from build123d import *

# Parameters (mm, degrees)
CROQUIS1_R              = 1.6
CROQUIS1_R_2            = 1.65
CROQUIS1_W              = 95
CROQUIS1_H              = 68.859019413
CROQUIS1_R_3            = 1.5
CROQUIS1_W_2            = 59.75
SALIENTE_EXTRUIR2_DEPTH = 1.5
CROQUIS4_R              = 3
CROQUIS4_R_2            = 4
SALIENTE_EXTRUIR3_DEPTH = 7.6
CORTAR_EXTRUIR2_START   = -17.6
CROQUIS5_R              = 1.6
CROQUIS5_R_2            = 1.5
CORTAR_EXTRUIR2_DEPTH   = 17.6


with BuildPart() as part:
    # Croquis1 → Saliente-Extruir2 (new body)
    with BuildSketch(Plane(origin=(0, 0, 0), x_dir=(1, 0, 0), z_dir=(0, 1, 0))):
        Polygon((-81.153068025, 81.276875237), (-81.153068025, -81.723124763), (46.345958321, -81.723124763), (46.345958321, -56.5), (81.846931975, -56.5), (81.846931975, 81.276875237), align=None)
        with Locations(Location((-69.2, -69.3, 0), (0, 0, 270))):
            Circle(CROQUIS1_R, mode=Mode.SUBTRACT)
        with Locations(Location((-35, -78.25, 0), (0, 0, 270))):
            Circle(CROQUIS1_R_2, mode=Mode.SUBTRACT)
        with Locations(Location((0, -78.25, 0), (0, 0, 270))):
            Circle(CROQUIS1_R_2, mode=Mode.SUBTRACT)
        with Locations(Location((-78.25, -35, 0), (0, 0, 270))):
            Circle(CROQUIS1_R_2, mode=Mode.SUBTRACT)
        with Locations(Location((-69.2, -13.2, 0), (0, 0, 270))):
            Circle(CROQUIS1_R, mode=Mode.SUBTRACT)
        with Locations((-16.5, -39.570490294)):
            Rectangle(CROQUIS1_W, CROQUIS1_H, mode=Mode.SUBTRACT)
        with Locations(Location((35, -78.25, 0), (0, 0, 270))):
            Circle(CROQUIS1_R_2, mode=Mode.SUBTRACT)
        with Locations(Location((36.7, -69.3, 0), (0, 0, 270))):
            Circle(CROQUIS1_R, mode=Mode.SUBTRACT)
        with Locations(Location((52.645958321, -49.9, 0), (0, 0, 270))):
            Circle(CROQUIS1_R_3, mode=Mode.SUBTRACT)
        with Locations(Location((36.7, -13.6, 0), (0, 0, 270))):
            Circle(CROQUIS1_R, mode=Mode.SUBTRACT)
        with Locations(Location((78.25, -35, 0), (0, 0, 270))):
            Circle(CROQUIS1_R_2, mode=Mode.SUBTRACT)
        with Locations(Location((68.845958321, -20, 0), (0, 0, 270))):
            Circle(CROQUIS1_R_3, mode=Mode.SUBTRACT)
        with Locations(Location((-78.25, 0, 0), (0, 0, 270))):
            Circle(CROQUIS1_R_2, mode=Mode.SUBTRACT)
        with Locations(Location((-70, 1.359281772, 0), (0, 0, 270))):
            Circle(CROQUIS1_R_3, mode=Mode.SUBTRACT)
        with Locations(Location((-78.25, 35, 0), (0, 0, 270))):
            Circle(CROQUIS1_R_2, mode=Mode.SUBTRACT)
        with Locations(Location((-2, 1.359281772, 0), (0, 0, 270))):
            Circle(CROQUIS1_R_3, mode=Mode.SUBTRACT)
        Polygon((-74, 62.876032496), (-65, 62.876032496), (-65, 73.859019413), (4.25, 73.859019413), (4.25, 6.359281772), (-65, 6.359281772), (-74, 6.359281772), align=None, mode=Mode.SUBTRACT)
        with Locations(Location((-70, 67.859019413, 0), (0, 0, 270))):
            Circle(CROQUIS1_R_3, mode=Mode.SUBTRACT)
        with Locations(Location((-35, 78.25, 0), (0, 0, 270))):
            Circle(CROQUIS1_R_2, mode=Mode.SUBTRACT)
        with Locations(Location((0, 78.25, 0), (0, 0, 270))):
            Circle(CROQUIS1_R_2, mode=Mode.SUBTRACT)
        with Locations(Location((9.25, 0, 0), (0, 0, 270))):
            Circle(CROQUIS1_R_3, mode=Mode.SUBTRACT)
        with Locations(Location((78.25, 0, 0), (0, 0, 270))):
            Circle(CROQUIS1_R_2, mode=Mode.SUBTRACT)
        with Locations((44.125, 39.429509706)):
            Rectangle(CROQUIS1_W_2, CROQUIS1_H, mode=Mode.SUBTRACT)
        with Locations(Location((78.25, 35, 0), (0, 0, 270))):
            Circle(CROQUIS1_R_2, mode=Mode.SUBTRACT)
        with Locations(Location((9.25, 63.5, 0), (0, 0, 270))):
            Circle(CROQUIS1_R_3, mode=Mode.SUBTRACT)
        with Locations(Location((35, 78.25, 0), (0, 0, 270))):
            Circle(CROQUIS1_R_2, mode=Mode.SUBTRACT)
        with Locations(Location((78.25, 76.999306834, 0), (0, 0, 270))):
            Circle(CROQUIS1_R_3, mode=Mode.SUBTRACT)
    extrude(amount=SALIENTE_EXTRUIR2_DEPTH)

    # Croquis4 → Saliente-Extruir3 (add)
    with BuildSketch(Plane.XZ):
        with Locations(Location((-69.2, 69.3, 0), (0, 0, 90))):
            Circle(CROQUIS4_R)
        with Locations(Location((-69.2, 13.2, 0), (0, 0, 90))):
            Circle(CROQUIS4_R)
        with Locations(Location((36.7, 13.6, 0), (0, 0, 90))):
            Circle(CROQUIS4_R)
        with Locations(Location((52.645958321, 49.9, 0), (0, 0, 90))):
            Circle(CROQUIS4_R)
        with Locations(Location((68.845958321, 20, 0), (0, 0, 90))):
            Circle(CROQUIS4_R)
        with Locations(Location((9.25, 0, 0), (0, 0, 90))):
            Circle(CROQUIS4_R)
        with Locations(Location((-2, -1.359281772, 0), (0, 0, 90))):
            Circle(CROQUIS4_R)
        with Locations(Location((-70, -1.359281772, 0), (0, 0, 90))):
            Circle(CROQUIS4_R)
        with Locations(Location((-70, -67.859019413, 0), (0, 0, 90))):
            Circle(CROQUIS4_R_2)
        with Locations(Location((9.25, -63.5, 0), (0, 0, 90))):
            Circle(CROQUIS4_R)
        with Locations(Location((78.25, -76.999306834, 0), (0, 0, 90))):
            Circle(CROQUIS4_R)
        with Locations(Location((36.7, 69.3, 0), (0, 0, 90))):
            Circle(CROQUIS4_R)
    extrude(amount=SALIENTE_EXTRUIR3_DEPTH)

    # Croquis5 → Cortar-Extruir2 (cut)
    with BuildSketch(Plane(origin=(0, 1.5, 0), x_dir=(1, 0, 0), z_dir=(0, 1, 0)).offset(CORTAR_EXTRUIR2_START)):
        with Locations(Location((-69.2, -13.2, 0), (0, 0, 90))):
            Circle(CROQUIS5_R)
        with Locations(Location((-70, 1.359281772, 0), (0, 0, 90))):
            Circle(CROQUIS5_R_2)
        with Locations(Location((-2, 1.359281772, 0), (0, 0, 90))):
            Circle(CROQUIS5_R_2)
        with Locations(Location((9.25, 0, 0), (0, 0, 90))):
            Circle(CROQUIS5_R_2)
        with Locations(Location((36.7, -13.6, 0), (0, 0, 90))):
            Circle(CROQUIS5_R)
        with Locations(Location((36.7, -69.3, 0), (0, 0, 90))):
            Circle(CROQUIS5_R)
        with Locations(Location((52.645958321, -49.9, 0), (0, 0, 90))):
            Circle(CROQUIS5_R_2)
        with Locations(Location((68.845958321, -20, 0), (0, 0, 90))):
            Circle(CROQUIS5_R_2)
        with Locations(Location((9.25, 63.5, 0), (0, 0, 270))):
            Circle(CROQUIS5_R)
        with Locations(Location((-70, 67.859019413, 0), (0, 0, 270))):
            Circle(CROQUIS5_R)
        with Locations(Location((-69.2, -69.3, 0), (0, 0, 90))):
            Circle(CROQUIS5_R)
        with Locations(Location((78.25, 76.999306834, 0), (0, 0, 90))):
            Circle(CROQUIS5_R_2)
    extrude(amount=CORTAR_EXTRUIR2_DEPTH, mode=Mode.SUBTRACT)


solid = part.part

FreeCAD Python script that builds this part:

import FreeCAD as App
import Part
import Sketcher
from FreeCAD import Vector


def add_polygon(sketch, points):
    """Adds a closed chain of lines whose ends are joined by coincident constraints."""
    first, n = sketch.GeometryCount, len(points)
    for a, b in zip(points, points[1:] + points[:1]):
        sketch.addGeometry(Part.LineSegment(App.Vector(*a, 0), App.Vector(*b, 0)), False)
    for i in range(n):
        sketch.addConstraint(Sketcher.Constraint("Coincident", first + i, 2, first + (i + 1) % n, 1))

doc = App.newDocument("Part")
body = doc.addObject("PartDesign::Body", "Body")

# Sketch on XZ plane
sketch1 = doc.addObject("Sketcher::SketchObject", "Sketch")
body.addObject(sketch1)
sketch1.AttachmentSupport = (doc.XZ_Plane, [""])
sketch1.MapMode = "FlatFace"
add_polygon(sketch1, [(-81.153068, -81.276875), (-81.153068, 81.723125), (46.345958, 81.723125), (46.345958, 56.5), (81.846932, 56.5), (81.846932, -81.276875)])  # lines 0-5
sketch1.addGeometry(Part.Circle(Vector(-69.2, 69.3, 0), Vector(0, 0, 1), 1.6), False)  # 6
sketch1.addGeometry(Part.Circle(Vector(-35, 78.25, 0), Vector(0, 0, 1), 1.65), False)  # 7
sketch1.addGeometry(Part.Circle(Vector(-78.25, 35, 0), Vector(0, 0, 1), 1.65), False)  # 8
sketch1.addGeometry(Part.Circle(Vector(-69.2, 13.2, 0), Vector(0, 0, 1), 1.6), False)  # 9
add_polygon(sketch1, [(31, 74), (-64, 74), (-64, 5.140981), (31, 5.140981)])  # lines 10-13
sketch1.addGeometry(Part.Circle(Vector(0, 78.25, 0), Vector(0, 0, 1), 1.65), False)  # 14
sketch1.addGeometry(Part.Circle(Vector(35, 78.25, 0), Vector(0, 0, 1), 1.65), False)  # 15
sketch1.addGeometry(Part.Circle(Vector(36.7, 69.3, 0), Vector(0, 0, 1), 1.6), False)  # 16
sketch1.addGeometry(Part.Circle(Vector(52.645958, 49.9, 0), Vector(0, 0, 1), 1.5), False)  # 17
sketch1.addGeometry(Part.Circle(Vector(36.7, 13.6, 0), Vector(0, 0, 1), 1.6), False)  # 18
sketch1.addGeometry(Part.Circle(Vector(78.25, 35, 0), Vector(0, 0, 1), 1.65), False)  # 19
sketch1.addGeometry(Part.Circle(Vector(68.845958, 20, 0), Vector(0, 0, 1), 1.5), False)  # 20
sketch1.addGeometry(Part.Circle(Vector(-78.25, 0, 0), Vector(0, 0, 1), 1.65), False)  # 21
sketch1.addGeometry(Part.Circle(Vector(-70, -1.359282, 0), Vector(0, 0, 1), 1.5), False)  # 22
sketch1.addGeometry(Part.Circle(Vector(-78.25, -35, 0), Vector(0, 0, 1), 1.65), False)  # 23
sketch1.addGeometry(Part.Circle(Vector(-2, -1.359282, 0), Vector(0, 0, 1), 1.5), False)  # 24
sketch1.addGeometry(Part.Circle(Vector(-70, -67.859019, 0), Vector(0, 0, 1), 1.5), False)  # 25
add_polygon(sketch1, [(-74, -6.359282), (-74, -62.876032), (-65, -62.876032), (-65, -73.859019), (4.25, -73.859019), (4.25, -6.359282)])  # lines 26-31
sketch1.addGeometry(Part.Circle(Vector(-35, -78.25, 0), Vector(0, 0, 1), 1.65), False)  # 32
sketch1.addGeometry(Part.Circle(Vector(9.25, 0, 0), Vector(0, 0, 1), 1.5), False)  # 33
sketch1.addGeometry(Part.Circle(Vector(78.25, 0, 0), Vector(0, 0, 1), 1.65), False)  # 34
add_polygon(sketch1, [(74, -5), (14.25, -5), (14.25, -73.859019), (74, -73.859019)])  # lines 35-38
sketch1.addGeometry(Part.Circle(Vector(78.25, -35, 0), Vector(0, 0, 1), 1.65), False)  # 39
sketch1.addGeometry(Part.Circle(Vector(9.25, -63.5, 0), Vector(0, 0, 1), 1.5), False)  # 40
sketch1.addGeometry(Part.Circle(Vector(0, -78.25, 0), Vector(0, 0, 1), 1.65), False)  # 41
sketch1.addGeometry(Part.Circle(Vector(35, -78.25, 0), Vector(0, 0, 1), 1.65), False)  # 42
sketch1.addGeometry(Part.Circle(Vector(78.25, -76.999307, 0), Vector(0, 0, 1), 1.5), False)  # 43
sketch1.addConstraint([
    Sketcher.Constraint("Vertical", 0),
    Sketcher.Constraint("Horizontal", 1),
    Sketcher.Constraint("Vertical", 2),
    Sketcher.Constraint("Horizontal", 3),
    Sketcher.Constraint("Vertical", 4),
    Sketcher.Constraint("Horizontal", 5),
    Sketcher.Constraint("Horizontal", 10),
    Sketcher.Constraint("Vertical", 11),
    Sketcher.Constraint("Horizontal", 12),
    Sketcher.Constraint("Vertical", 13),
    Sketcher.Constraint("Vertical", 26),
    Sketcher.Constraint("Horizontal", 27),
    Sketcher.Constraint("Vertical", 28),
    Sketcher.Constraint("Horizontal", 29),
    Sketcher.Constraint("Vertical", 30),
    Sketcher.Constraint("Horizontal", 31),
    Sketcher.Constraint("Horizontal", 35),
    Sketcher.Constraint("Vertical", 36),
    Sketcher.Constraint("Horizontal", 37),
    Sketcher.Constraint("Vertical", 38),
    Sketcher.Constraint("Equal", 7, 8),
    Sketcher.Constraint("Equal", 6, 9),
    Sketcher.Constraint("Equal", 8, 14),
    Sketcher.Constraint("Equal", 14, 15),
    Sketcher.Constraint("Equal", 9, 16),
    Sketcher.Constraint("Equal", 16, 18),
    Sketcher.Constraint("Equal", 15, 19),
    Sketcher.Constraint("Equal", 17, 20),
    Sketcher.Constraint("Equal", 19, 21),
    Sketcher.Constraint("Equal", 20, 22),
    Sketcher.Constraint("Equal", 21, 23),
    Sketcher.Constraint("Equal", 22, 24),
    Sketcher.Constraint("Equal", 24, 25),
    Sketcher.Constraint("Equal", 23, 32),
    Sketcher.Constraint("Equal", 25, 33),
    Sketcher.Constraint("Equal", 32, 34),
    Sketcher.Constraint("Equal", 34, 39),
    Sketcher.Constraint("Equal", 33, 40),
    Sketcher.Constraint("Equal", 39, 41),
    Sketcher.Constraint("Equal", 41, 42),
    Sketcher.Constraint("Equal", 40, 43),
    Sketcher.Constraint("Symmetric", 19, 3, 23, 3, -1, 1),
    Sketcher.Constraint("Symmetric", 15, 3, 32, 3, -1, 1),
    Sketcher.Constraint("Symmetric", 21, 3, 34, 3, -1, 1),
    Sketcher.Constraint("Symmetric", 8, 3, 39, 3, -1, 1),
    Sketcher.Constraint("Symmetric", 14, 3, 41, 3, -1, 1),
    Sketcher.Constraint("Symmetric", 7, 3, 42, 3, -1, 1),
    Sketcher.Constraint("Symmetric", 7, 3, 15, 3, -2),
    Sketcher.Constraint("Symmetric", 8, 3, 19, 3, -2),
    Sketcher.Constraint("PointOnObject", 14, 3, -2),
    Sketcher.Constraint("PointOnObject", 21, 3, -1),
    Sketcher.Constraint("PointOnObject", 33, 3, -1),
    Sketcher.Constraint("Horizontal", 7, 3, 14, 3),
    Sketcher.Constraint("Horizontal", 6, 3, 16, 3),
    Sketcher.Constraint("Horizontal", 22, 3, 24, 3),
    Sketcher.Constraint("Horizontal", 29, 2, 36, 2),
    Sketcher.Constraint("Vertical", 6, 3, 9, 3),
    Sketcher.Constraint("Vertical", 16, 3, 18, 3),
    Sketcher.Constraint("Vertical", 8, 3, 21, 3),
    Sketcher.Constraint("Vertical", 22, 3, 25, 3),
    Sketcher.Constraint("Vertical", 33, 3, 40, 3),
    Sketcher.Constraint("Vertical", 39, 3, 43, 3),
    Sketcher.Constraint("Equal", 5, 0),
    Sketcher.Constraint("Equal", 13, 36),
    Sketcher.Constraint("Diameter", 17, 3.0),
    Sketcher.Constraint("Diameter", 6, 3.2),
    Sketcher.Constraint("Diameter", 7, 3.3),
    Sketcher.Constraint("DistanceX", 5, 2, 5, 1, 163.0),
    Sketcher.Constraint("DistanceX", 10, 2, 10, 1, 95.0),
    Sketcher.Constraint("DistanceX", 27, 1, 27, 2, 9.0),
    Sketcher.Constraint("DistanceX", 7, 3, -1, 1, 35.0),
    Sketcher.Constraint("DistanceY", -1, 1, 8, 3, 35.0),
    Sketcher.Constraint("DistanceY", -1, 1, 20, 3, 20.0),
    Sketcher.Constraint("DistanceX", 22, 3, -1, 1, 70.0),
    Sketcher.Constraint("DistanceX", 24, 3, -1, 1, 2.0),
    Sketcher.Constraint("DistanceX", 10, 2, -1, 1, 64.0),
    Sketcher.Constraint("DistanceY", -1, 1, 10, 2, 74.0),
    Sketcher.Constraint("DistanceX", 26, 2, -1, 1, 74.0),
    Sketcher.Constraint("DistanceY", 35, 2, -1, 1, 5.0),
    Sketcher.Constraint("DistanceX", -1, 1, 37, 2, 74.0),
    Sketcher.Constraint("DistanceX", 33, 3, 34, 3, 69.0),
    Sketcher.Constraint("DistanceY", 28, 2, 25, 3, 6.0),
    Sketcher.Constraint("DistanceX", 29, 2, 40, 3, 5.0),
    Sketcher.Constraint("DistanceY", 30, 2, 24, 3, 5.0),
    Sketcher.Constraint("DistanceX", 33, 3, 35, 2, 5.0),
    Sketcher.Constraint("DistanceX", 29, 1, 29, 2, 69.25),
    Sketcher.Constraint("DistanceX", 6, 3, -1, 1, 69.2),
    Sketcher.Constraint("DistanceY", -1, 1, 6, 3, 69.3),
    Sketcher.Constraint("DistanceY", -1, 1, 9, 3, 13.2),
    Sketcher.Constraint("DistanceX", -1, 1, 16, 3, 36.7),
    Sketcher.Constraint("DistanceY", -1, 1, 17, 3, 49.9),
    Sketcher.Constraint("DistanceY", -1, 1, 18, 3, 13.6),
    Sketcher.Constraint("DistanceY", 40, 3, -1, 1, 63.5),
    Sketcher.Constraint("DistanceY", -1, 1, 2, 2, 56.5),
    Sketcher.Constraint("DistanceX", 17, 3, 20, 3, 16.2),
    Sketcher.Constraint("DistanceX", 1, 2, 17, 3, 6.3),
    Sketcher.Constraint("DistanceY", -1, 1, 7, 3, 78.25),
    Sketcher.Constraint("DistanceY", 11, 2, 11, 1, 68.859019),
    Sketcher.Constraint("DistanceY", 26, 2, 26, 1, 56.516751),
    Sketcher.Constraint("DistanceX", 1, 1, 1, 2, 127.499026),
    Sketcher.Constraint("DistanceY", 2, 2, 2, 1, 25.223125),
    Sketcher.Constraint("DistanceY", 28, 2, 28, 1, 10.982987),
    Sketcher.Constraint("DistanceX", -1, 1, 17, 3, 52.645958),
    Sketcher.Constraint("DistanceY", 4, 2, 43, 3, 4.277568),
])
pad1 = doc.addObject("PartDesign::Pad", "Pad")
body.addObject(pad1)
pad1.Profile = sketch1
pad1.Length = 1.5
pad1.Reversed = True

# Sketch on XZ plane
sketch2 = doc.addObject("Sketcher::SketchObject", "Sketch001")
body.addObject(sketch2)
sketch2.AttachmentSupport = (doc.XZ_Plane, [""])
sketch2.MapMode = "FlatFace"
sketch2.addGeometry([
    Part.Circle(Vector(-69.2, 69.3, 0), Vector(0, 0, 1), 3),  # 0
    Part.Circle(Vector(-69.2, 13.2, 0), Vector(0, 0, 1), 3),  # 1
    Part.Circle(Vector(36.7, 13.6, 0), Vector(0, 0, 1), 3),  # 2
    Part.Circle(Vector(52.645958, 49.9, 0), Vector(0, 0, 1), 3),  # 3
    Part.Circle(Vector(68.845958, 20, 0), Vector(0, 0, 1), 3),  # 4
    Part.Circle(Vector(9.25, 0, 0), Vector(0, 0, 1), 3),  # 5
    Part.Circle(Vector(-2, -1.359282, 0), Vector(0, 0, 1), 3),  # 6
    Part.Circle(Vector(-70, -1.359282, 0), Vector(0, 0, 1), 3),  # 7
    Part.Circle(Vector(-70, -67.859019, 0), Vector(0, 0, 1), 4),  # 8
    Part.Circle(Vector(9.25, -63.5, 0), Vector(0, 0, 1), 3),  # 9
    Part.Circle(Vector(78.25, -76.999307, 0), Vector(0, 0, 1), 3),  # 10
    Part.Circle(Vector(36.7, 69.3, 0), Vector(0, 0, 1), 3),  # 11
], False)
sketch2.addConstraint([
    Sketcher.Constraint("Equal", 0, 1),
    Sketcher.Constraint("Equal", 1, 2),
    Sketcher.Constraint("Equal", 2, 3),
    Sketcher.Constraint("Equal", 3, 4),
    Sketcher.Constraint("Equal", 4, 5),
    Sketcher.Constraint("Equal", 5, 6),
    Sketcher.Constraint("Equal", 6, 7),
    Sketcher.Constraint("Equal", 7, 9),
    Sketcher.Constraint("Equal", 9, 10),
    Sketcher.Constraint("Equal", 10, 11),
    Sketcher.Constraint("PointOnObject", 5, 3, -1),
    Sketcher.Constraint("Horizontal", 6, 3, 7, 3),
    Sketcher.Constraint("Horizontal", 0, 3, 11, 3),
    Sketcher.Constraint("Vertical", 0, 3, 1, 3),
    Sketcher.Constraint("Vertical", 7, 3, 8, 3),
    Sketcher.Constraint("Vertical", 5, 3, 9, 3),
    Sketcher.Constraint("Vertical", 2, 3, 11, 3),
    Sketcher.Constraint("Diameter", 0, 6.0),
    Sketcher.Constraint("Diameter", 8, 8.0),
    Sketcher.Constraint("DistanceY", -1, 1, 4, 3, 20.0),
    Sketcher.Constraint("DistanceX", 6, 3, -1, 1, 2.0),
    Sketcher.Constraint("DistanceX", 7, 3, -1, 1, 70.0),
    Sketcher.Constraint("DistanceX", 9, 3, 10, 3, 69.0),
    Sketcher.Constraint("DistanceX", 0, 3, -1, 1, 69.2),
    Sketcher.Constraint("DistanceY", -1, 1, 0, 3, 69.3),
    Sketcher.Constraint("DistanceY", -1, 1, 1, 3, 13.2),
    Sketcher.Constraint("DistanceX", -1, 1, 2, 3, 36.7),
    Sketcher.Constraint("DistanceY", -1, 1, 2, 3, 13.6),
    Sketcher.Constraint("DistanceY", -1, 1, 3, 3, 49.9),
    Sketcher.Constraint("DistanceY", 9, 3, -1, 1, 63.5),
    Sketcher.Constraint("DistanceX", 3, 3, 4, 3, 16.2),
    Sketcher.Constraint("DistanceX", -1, 1, 5, 3, 9.25),
    Sketcher.Constraint("DistanceX", -1, 1, 3, 3, 52.645958),
    Sketcher.Constraint("DistanceY", 6, 3, -1, 1, 1.359282),
    Sketcher.Constraint("DistanceY", 8, 3, -1, 1, 67.859019),
    Sketcher.Constraint("DistanceY", 10, 3, -1, 1, 76.999307),
])
pad2 = doc.addObject("PartDesign::Pad", "Pad001")
body.addObject(pad2)
pad2.Profile = sketch2
pad2.Length = 7.6

# Sketch on XZ plane
sketch3 = doc.addObject("Sketcher::SketchObject", "Sketch002")
body.addObject(sketch3)
sketch3.AttachmentSupport = (doc.XZ_Plane, [""])
sketch3.MapMode = "FlatFace"
sketch3.AttachmentOffset = App.Placement(Vector(0, 0, 16.1), App.Rotation())
sketch3.addGeometry([
    Part.Circle(Vector(-69.2, 13.2, 0), Vector(0, 0, 1), 1.6),  # 0
    Part.Circle(Vector(-70, -1.359282, 0), Vector(0, 0, 1), 1.5),  # 1
    Part.Circle(Vector(-2, -1.359282, 0), Vector(0, 0, 1), 1.5),  # 2
    Part.Circle(Vector(9.25, 0, 0), Vector(0, 0, 1), 1.5),  # 3
    Part.Circle(Vector(36.7, 13.6, 0), Vector(0, 0, 1), 1.6),  # 4
    Part.Circle(Vector(36.7, 69.3, 0), Vector(0, 0, 1), 1.6),  # 5
    Part.Circle(Vector(52.645958, 49.9, 0), Vector(0, 0, 1), 1.5),  # 6
    Part.Circle(Vector(68.845958, 20, 0), Vector(0, 0, 1), 1.5),  # 7
    Part.Circle(Vector(9.25, -63.5, 0), Vector(0, 0, 1), 1.6),  # 8
    Part.Circle(Vector(-70, -67.859019, 0), Vector(0, 0, 1), 1.6),  # 9
    Part.Circle(Vector(-69.2, 69.3, 0), Vector(0, 0, 1), 1.6),  # 10
    Part.Circle(Vector(78.25, -76.999307, 0), Vector(0, 0, 1), 1.5),  # 11
], False)
sketch3.addConstraint([
    Sketcher.Constraint("Equal", 1, 2),
    Sketcher.Constraint("Equal", 2, 3),
    Sketcher.Constraint("Equal", 0, 4),
    Sketcher.Constraint("Equal", 4, 5),
    Sketcher.Constraint("Equal", 3, 6),
    Sketcher.Constraint("Equal", 6, 7),
    Sketcher.Constraint("Equal", 5, 8),
    Sketcher.Constraint("Equal", 8, 9),
    Sketcher.Constraint("Equal", 9, 10),
    Sketcher.Constraint("Equal", 7, 11),
    Sketcher.Constraint("PointOnObject", 3, 3, -1),
    Sketcher.Constraint("Horizontal", 1, 3, 2, 3),
    Sketcher.Constraint("Horizontal", 5, 3, 10, 3),
    Sketcher.Constraint("Vertical", 4, 3, 5, 3),
    Sketcher.Constraint("Vertical", 3, 3, 8, 3),
    Sketcher.Constraint("Vertical", 1, 3, 9, 3),
    Sketcher.Constraint("Vertical", 0, 3, 10, 3),
    Sketcher.Constraint("Diameter", 1, 3.0),
    Sketcher.Constraint("Diameter", 0, 3.2),
    Sketcher.Constraint("DistanceX", 1, 3, -1, 1, 70.0),
    Sketcher.Constraint("DistanceX", 2, 3, -1, 1, 2.0),
    Sketcher.Constraint("DistanceY", -1, 1, 7, 3, 20.0),
    Sketcher.Constraint("DistanceX", 8, 3, 11, 3, 69.0),
    Sketcher.Constraint("DistanceX", 0, 3, -1, 1, 69.2),
    Sketcher.Constraint("DistanceY", -1, 1, 0, 3, 13.2),
    Sketcher.Constraint("DistanceX", -1, 1, 4, 3, 36.7),
    Sketcher.Constraint("DistanceY", -1, 1, 4, 3, 13.6),
    Sketcher.Constraint("DistanceY", -1, 1, 5, 3, 69.3),
    Sketcher.Constraint("DistanceY", -1, 1, 6, 3, 49.9),
    Sketcher.Constraint("DistanceY", 8, 3, -1, 1, 63.5),
    Sketcher.Constraint("DistanceX", 6, 3, 7, 3, 16.2),
    Sketcher.Constraint("DistanceX", -1, 1, 3, 3, 9.25),
    Sketcher.Constraint("DistanceY", 1, 3, -1, 1, 1.359282),
    Sketcher.Constraint("DistanceX", -1, 1, 6, 3, 52.645958),
    Sketcher.Constraint("DistanceY", 9, 3, -1, 1, 67.859019),
    Sketcher.Constraint("DistanceY", 11, 3, -1, 1, 76.999307),
])
pocket1 = doc.addObject("PartDesign::Pocket", "Pocket")
body.addObject(pocket1)
pocket1.Profile = sketch3
pocket1.Length = 17.6

doc.recompute()
